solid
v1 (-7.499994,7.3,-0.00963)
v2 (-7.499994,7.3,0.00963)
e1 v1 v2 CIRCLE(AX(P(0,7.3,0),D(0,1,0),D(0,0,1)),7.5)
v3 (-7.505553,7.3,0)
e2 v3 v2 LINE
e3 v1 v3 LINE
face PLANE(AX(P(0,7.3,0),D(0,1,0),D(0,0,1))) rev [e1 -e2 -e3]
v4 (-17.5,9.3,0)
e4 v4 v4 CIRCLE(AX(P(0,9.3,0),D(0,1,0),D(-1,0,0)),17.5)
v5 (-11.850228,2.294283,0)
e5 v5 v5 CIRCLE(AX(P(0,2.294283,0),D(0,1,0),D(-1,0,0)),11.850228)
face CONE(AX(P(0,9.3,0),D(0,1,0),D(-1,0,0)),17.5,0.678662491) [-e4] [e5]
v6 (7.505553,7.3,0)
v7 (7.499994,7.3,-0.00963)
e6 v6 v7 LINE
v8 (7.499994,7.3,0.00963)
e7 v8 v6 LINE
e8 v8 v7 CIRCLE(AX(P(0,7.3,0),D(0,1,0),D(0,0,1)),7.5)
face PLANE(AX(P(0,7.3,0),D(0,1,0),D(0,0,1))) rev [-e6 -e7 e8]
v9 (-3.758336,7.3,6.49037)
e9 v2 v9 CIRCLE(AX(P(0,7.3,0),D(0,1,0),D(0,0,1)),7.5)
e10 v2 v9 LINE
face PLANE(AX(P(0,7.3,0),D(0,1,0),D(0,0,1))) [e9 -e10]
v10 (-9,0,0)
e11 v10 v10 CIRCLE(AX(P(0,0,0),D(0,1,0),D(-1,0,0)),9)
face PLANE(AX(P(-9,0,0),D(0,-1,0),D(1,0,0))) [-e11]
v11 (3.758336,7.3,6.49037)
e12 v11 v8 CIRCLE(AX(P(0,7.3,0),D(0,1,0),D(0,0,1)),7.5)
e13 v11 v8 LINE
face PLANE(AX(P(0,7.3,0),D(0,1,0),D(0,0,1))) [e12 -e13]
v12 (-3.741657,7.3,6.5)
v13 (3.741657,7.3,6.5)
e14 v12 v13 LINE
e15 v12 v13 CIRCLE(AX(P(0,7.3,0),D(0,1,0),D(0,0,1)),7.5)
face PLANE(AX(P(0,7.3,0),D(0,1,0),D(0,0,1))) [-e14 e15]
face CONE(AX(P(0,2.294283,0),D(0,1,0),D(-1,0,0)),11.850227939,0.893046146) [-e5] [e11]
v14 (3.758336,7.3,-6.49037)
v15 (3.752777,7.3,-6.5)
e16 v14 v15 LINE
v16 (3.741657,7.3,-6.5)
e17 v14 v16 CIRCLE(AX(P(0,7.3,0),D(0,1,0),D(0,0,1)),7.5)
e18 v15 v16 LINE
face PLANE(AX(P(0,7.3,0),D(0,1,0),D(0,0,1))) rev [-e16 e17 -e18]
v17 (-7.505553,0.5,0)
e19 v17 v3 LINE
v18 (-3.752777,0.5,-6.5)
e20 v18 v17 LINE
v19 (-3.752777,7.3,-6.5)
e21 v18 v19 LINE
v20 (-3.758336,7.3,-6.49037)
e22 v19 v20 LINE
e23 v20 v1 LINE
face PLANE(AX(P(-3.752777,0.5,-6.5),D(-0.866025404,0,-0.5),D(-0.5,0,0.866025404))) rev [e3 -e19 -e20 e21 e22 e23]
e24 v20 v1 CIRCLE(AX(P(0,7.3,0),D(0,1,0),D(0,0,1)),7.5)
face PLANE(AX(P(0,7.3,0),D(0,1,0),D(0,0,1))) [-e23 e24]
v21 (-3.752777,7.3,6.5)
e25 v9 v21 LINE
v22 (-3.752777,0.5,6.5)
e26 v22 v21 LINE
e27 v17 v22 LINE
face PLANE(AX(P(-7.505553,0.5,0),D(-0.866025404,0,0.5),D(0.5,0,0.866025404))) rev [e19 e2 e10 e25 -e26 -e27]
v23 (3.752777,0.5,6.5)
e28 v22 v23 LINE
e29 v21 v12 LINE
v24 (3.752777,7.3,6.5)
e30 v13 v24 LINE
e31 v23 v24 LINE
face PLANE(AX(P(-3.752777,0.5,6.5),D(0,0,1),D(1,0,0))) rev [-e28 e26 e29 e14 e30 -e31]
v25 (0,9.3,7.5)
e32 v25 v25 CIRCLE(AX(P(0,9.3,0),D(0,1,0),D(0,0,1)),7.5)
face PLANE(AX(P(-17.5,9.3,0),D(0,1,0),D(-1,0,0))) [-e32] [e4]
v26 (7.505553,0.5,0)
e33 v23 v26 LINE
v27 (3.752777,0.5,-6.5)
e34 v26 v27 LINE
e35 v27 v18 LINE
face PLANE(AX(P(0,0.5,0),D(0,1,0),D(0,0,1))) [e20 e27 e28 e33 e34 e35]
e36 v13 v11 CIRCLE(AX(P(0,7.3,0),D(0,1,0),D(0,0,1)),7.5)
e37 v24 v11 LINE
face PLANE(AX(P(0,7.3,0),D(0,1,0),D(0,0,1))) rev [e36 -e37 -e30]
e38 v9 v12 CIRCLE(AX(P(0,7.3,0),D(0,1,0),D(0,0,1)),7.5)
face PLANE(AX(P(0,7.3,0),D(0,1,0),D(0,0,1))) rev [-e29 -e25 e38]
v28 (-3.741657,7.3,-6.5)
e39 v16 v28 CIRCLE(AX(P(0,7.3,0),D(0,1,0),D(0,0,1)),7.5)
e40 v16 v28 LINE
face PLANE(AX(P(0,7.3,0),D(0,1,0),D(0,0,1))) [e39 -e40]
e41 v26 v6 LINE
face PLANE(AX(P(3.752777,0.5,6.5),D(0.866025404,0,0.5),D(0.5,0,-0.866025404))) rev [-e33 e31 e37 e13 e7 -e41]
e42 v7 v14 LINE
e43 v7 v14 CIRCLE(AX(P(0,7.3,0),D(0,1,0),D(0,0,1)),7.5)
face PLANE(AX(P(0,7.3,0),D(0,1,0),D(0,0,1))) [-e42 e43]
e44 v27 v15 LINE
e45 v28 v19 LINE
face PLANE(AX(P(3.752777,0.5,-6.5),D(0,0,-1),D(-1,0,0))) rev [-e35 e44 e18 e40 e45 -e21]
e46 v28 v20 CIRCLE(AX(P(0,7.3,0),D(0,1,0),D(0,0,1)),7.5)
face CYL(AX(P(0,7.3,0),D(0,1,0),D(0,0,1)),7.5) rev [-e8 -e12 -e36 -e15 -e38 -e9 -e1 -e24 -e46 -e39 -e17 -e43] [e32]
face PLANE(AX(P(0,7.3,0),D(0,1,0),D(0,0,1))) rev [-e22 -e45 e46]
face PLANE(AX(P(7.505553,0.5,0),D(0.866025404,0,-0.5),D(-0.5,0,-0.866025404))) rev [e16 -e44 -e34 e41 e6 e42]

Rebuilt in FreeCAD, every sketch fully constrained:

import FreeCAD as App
import Part
import Sketcher
from FreeCAD import Vector
Q = App.Units.Quantity


def add_polygon(sketch, points):
    """Adds a closed chain of lines whose ends are joined by coincident constraints."""
    first, n = sketch.GeometryCount, len(points)
    for a, b in zip(points, points[1:] + points[:1]):
        sketch.addGeometry(Part.LineSegment(App.Vector(*a, 0), App.Vector(*b, 0)), False)
    for i in range(n):
        sketch.addConstraint(Sketcher.Constraint("Coincident", first + i, 2, first + (i + 1) % n, 1))

doc = App.newDocument("Part")
params = doc.addObject("Spreadsheet::Sheet", "Params")
for row, (alias, value) in enumerate([
    ("sketch1_width", "9 mm"),
    ("sketch1_length", "9 mm"),
    ("sketch1_width2", "17.5 mm"),
    ("sketch1_height", "9.3 mm"),
    ("revolution_angle", "360 deg"),
    ("sketch2_diameter", "15 mm"),
    ("pocket1_length", "2 mm"),
    ("pocket2_length", "6.8 mm"),
], start=1):
    params.set(f"A{row}", alias)
    params.set(f"B{row}", "=" + value)
    params.setAlias(f"B{row}", alias)

body = doc.addObject("PartDesign::Body", "Body")

# Sketch on XY plane
sketch1 = body.newObject("Sketcher::SketchObject", "Sketch")
sketch1.AttachmentSupport = (doc.getObject("XY_Plane"), [""])
sketch1.MapMode = "FlatFace"
add_polygon(sketch1, [(0, 9.3), (-17.5, 9.3), (-11.9, 2.3), (-9, 0), (0, 0)])  # lines 0-4
sketch1.addConstraint(Sketcher.Constraint("Horizontal", 0))
sketch1.addConstraint(Sketcher.Constraint("Horizontal", 3))
sketch1.addConstraint(Sketcher.Constraint("Vertical", 4))
sketch1.addConstraint(Sketcher.Constraint("Coincident", 3, 2, -1, 1))
sketch1.addConstraint(Sketcher.Constraint("DistanceX", 3, 1, 3, 2, 9.0))
sketch1.addConstraint(Sketcher.Constraint("Distance", 1, 9.0))
sketch1.addConstraint(Sketcher.Constraint("DistanceX", 0, 2, 0, 1, 17.5))
sketch1.addConstraint(Sketcher.Constraint("DistanceY", 4, 1, 4, 2, 9.3))
sketch1.addConstraint(Sketcher.Constraint("Distance", 2, 3.658898))
sketch1.setExpression("Constraints[9]", "Params.sketch1_width")
sketch1.setExpression("Constraints[10]", "Params.sketch1_length")
sketch1.setExpression("Constraints[11]", "Params.sketch1_width2")
sketch1.setExpression("Constraints[12]", "Params.sketch1_height")
revolution = body.newObject("PartDesign::Revolution", "Revolution")
revolution.Profile = sketch1
revolution.ReferenceAxis = (sketch1, ["V_Axis"])
revolution.setExpression("Angle", "Params.revolution_angle")

# Sketch on XZ plane
sketch2 = body.newObject("Sketcher::SketchObject", "Sketch001")
sketch2.AttachmentSupport = (doc.getObject("XZ_Plane"), [""])
sketch2.MapMode = "FlatFace"
sketch2.AttachmentOffset = App.Placement(Vector(0, 0, -9.3), App.Rotation())
sketch2.addGeometry(Part.Circle(Vector(0, 0, 0), Vector(0, 0, 1), 8), False)
sketch2.addConstraint(Sketcher.Constraint("Coincident", 0, 3, -1, 1))
sketch2.addConstraint(Sketcher.Constraint("Diameter", 0, 15.0))
sketch2.setExpression("Constraints[1]", "Params.sketch2_diameter")
pocket1 = body.newObject("PartDesign::Pocket", "Pocket")
pocket1.Profile = sketch2
pocket1.setExpression("Length", "Params.pocket1_length")
pocket1.Reversed = True

# Sketch on XZ plane
sketch3 = body.newObject("Sketcher::SketchObject", "Sketch002")
sketch3.AttachmentSupport = (doc.getObject("XZ_Plane"), [""])
sketch3.MapMode = "FlatFace"
sketch3.AttachmentOffset = App.Placement(Vector(0, 0, -7.3), App.Rotation())
add_polygon(sketch3, [(4, 6), (8, 0), (4, -6), (-4, -6), (-8, 0), (-4, 6)])  # lines 0-5
sketch3.addConstraint(Sketcher.Constraint("Horizontal", 2))
sketch3.addConstraint(Sketcher.Constraint("Horizontal", 5))
sketch3.addConstraint(Sketcher.Constraint("Symmetric", 0, 2, 3, 2, -1, 1))
sketch3.addConstraint(Sketcher.Constraint("Symmetric", 1, 2, 4, 2, -1, 1))
sketch3.addConstraint(Sketcher.Constraint("PointOnObject", 0, 2, -1))
sketch3.addConstraint(Sketcher.Constraint("Parallel", 0, 3))
sketch3.addConstraint(Sketcher.Constraint("Vertical", 2, 2, 4, 2))
sketch3.addConstraint(Sketcher.Constraint("Angle", 0, Q("-60 deg")))
sketch3.addConstraint(Sketcher.Constraint("DistanceY", 2, 2, 4, 2, 13.0))
sketch3.addConstraint(Sketcher.Constraint("DistanceX", 2, 2, 2, 1, 7.505554))
pocket2 = body.newObject("PartDesign::Pocket", "Pocket001")
pocket2.Profile = sketch3
pocket2.setExpression("Length", "Params.pocket2_length")
pocket2.Reversed = True

doc.recompute()
